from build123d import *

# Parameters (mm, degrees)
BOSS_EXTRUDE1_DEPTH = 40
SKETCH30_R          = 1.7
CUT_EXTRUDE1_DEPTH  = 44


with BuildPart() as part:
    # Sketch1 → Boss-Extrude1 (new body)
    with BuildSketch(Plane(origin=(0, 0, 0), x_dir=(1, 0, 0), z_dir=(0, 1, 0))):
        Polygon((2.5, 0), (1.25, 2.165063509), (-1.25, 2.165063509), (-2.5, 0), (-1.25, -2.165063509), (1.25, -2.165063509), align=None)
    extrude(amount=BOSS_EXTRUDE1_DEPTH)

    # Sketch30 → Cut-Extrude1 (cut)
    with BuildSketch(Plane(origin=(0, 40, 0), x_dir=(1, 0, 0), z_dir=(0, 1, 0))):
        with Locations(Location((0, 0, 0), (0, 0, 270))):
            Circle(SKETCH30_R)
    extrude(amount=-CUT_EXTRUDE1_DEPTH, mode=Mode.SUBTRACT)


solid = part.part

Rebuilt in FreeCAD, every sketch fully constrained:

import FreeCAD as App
import Part
import Sketcher

V = App.Vector
Q = App.Units.Quantity


def add_polygon(sketch, points):
    """Adds a closed chain of lines whose ends are joined by coincident constraints."""
    first, n = sketch.GeometryCount, len(points)
    for a, b in zip(points, points[1:] + points[:1]):
        sketch.addGeometry(Part.LineSegment(App.Vector(*a, 0), App.Vector(*b, 0)), False)
    for i in range(n):
        sketch.addConstraint(Sketcher.Constraint("Coincident", first + i, 2, first + (i + 1) % n, 1))

doc = App.newDocument("Part")
params = doc.addObject("Spreadsheet::Sheet", "Params")
for row, (alias, value) in enumerate([
    ("sketch1_width", "2.5 mm"),
    ("pad1_length", "40 mm"),
    ("sketch2_diameter", "3.4 mm"),
    ("pocket1_length", "44 mm"),
], start=1):
    params.set(f"A{row}", alias)
    params.set(f"B{row}", "=" + value)
    params.setAlias(f"B{row}", alias)

body = doc.addObject("PartDesign::Body", "Body")

# Sketch on XZ plane
sketch1 = body.newObject("Sketcher::SketchObject", "Sketch")
sketch1.AttachmentSupport = (doc.getObject("XZ_Plane"), [""])
sketch1.MapMode = "FlatFace"
add_polygon(sketch1, [(2.5, 0), (1.25, -2.165064), (-1.25, -2.165064), (-2.5, 0), (-1.25, 2.165064), (1.25, 2.165064)])  # lines 0-5
sketch1.addConstraint(Sketcher.Constraint("Horizontal", 1))
sketch1.addConstraint(Sketcher.Constraint("Horizontal", 4))
sketch1.addConstraint(Sketcher.Constraint("Symmetric", 0, 2, 3, 2, -1, 1))
sketch1.addConstraint(Sketcher.Constraint("Symmetric", 2, 2, 5, 2, -1, 1))
sketch1.addConstraint(Sketcher.Constraint("PointOnObject", 2, 2, -1))
sketch1.addConstraint(Sketcher.Constraint("Parallel", 2, 5))
sketch1.addConstraint(Sketcher.Constraint("Vertical", 1, 2, 3, 2))
sketch1.addConstraint(Sketcher.Constraint("Angle", 0, Q("-120 deg")))
sketch1.addConstraint(Sketcher.Constraint("DistanceX", 1, 2, 1, 1, Q("2.5 mm")))
sketch1.addConstraint(Sketcher.Constraint("DistanceX", 2, 2, 5, 2, Q("5 mm")))
sketch1.setExpression("Constraints[14]", "Params.sketch1_width")
pad1 = body.newObject("PartDesign::Pad", "Pad")
pad1.Profile = sketch1
pad1.setExpression("Length", "Params.pad1_length")
pad1.Reversed = True

# Sketch on XZ plane
sketch2 = body.newObject("Sketcher::SketchObject", "Sketch001")
sketch2.AttachmentSupport = (doc.getObject("XZ_Plane"), [""])
sketch2.MapMode = "FlatFace"
sketch2.AttachmentOffset = App.Placement(V(0, 0, -40), App.Rotation())
sketch2.addGeometry(Part.Circle(V(0, 0, 0), V(0, 0, 1), 1.7), False)
sketch2.addConstraint(Sketcher.Constraint("Coincident", 0, 3, -1, 1))
sketch2.addConstraint(Sketcher.Constraint("Diameter", 0, Q("3.4 mm")))
sketch2.setExpression("Constraints[1]", "Params.sketch2_diameter")
pocket1 = body.newObject("PartDesign::Pocket", "Pocket")
pocket1.Profile = sketch2
pocket1.setExpression("Length", "Params.pocket1_length")
pocket1.Reversed = True

doc.recompute()
